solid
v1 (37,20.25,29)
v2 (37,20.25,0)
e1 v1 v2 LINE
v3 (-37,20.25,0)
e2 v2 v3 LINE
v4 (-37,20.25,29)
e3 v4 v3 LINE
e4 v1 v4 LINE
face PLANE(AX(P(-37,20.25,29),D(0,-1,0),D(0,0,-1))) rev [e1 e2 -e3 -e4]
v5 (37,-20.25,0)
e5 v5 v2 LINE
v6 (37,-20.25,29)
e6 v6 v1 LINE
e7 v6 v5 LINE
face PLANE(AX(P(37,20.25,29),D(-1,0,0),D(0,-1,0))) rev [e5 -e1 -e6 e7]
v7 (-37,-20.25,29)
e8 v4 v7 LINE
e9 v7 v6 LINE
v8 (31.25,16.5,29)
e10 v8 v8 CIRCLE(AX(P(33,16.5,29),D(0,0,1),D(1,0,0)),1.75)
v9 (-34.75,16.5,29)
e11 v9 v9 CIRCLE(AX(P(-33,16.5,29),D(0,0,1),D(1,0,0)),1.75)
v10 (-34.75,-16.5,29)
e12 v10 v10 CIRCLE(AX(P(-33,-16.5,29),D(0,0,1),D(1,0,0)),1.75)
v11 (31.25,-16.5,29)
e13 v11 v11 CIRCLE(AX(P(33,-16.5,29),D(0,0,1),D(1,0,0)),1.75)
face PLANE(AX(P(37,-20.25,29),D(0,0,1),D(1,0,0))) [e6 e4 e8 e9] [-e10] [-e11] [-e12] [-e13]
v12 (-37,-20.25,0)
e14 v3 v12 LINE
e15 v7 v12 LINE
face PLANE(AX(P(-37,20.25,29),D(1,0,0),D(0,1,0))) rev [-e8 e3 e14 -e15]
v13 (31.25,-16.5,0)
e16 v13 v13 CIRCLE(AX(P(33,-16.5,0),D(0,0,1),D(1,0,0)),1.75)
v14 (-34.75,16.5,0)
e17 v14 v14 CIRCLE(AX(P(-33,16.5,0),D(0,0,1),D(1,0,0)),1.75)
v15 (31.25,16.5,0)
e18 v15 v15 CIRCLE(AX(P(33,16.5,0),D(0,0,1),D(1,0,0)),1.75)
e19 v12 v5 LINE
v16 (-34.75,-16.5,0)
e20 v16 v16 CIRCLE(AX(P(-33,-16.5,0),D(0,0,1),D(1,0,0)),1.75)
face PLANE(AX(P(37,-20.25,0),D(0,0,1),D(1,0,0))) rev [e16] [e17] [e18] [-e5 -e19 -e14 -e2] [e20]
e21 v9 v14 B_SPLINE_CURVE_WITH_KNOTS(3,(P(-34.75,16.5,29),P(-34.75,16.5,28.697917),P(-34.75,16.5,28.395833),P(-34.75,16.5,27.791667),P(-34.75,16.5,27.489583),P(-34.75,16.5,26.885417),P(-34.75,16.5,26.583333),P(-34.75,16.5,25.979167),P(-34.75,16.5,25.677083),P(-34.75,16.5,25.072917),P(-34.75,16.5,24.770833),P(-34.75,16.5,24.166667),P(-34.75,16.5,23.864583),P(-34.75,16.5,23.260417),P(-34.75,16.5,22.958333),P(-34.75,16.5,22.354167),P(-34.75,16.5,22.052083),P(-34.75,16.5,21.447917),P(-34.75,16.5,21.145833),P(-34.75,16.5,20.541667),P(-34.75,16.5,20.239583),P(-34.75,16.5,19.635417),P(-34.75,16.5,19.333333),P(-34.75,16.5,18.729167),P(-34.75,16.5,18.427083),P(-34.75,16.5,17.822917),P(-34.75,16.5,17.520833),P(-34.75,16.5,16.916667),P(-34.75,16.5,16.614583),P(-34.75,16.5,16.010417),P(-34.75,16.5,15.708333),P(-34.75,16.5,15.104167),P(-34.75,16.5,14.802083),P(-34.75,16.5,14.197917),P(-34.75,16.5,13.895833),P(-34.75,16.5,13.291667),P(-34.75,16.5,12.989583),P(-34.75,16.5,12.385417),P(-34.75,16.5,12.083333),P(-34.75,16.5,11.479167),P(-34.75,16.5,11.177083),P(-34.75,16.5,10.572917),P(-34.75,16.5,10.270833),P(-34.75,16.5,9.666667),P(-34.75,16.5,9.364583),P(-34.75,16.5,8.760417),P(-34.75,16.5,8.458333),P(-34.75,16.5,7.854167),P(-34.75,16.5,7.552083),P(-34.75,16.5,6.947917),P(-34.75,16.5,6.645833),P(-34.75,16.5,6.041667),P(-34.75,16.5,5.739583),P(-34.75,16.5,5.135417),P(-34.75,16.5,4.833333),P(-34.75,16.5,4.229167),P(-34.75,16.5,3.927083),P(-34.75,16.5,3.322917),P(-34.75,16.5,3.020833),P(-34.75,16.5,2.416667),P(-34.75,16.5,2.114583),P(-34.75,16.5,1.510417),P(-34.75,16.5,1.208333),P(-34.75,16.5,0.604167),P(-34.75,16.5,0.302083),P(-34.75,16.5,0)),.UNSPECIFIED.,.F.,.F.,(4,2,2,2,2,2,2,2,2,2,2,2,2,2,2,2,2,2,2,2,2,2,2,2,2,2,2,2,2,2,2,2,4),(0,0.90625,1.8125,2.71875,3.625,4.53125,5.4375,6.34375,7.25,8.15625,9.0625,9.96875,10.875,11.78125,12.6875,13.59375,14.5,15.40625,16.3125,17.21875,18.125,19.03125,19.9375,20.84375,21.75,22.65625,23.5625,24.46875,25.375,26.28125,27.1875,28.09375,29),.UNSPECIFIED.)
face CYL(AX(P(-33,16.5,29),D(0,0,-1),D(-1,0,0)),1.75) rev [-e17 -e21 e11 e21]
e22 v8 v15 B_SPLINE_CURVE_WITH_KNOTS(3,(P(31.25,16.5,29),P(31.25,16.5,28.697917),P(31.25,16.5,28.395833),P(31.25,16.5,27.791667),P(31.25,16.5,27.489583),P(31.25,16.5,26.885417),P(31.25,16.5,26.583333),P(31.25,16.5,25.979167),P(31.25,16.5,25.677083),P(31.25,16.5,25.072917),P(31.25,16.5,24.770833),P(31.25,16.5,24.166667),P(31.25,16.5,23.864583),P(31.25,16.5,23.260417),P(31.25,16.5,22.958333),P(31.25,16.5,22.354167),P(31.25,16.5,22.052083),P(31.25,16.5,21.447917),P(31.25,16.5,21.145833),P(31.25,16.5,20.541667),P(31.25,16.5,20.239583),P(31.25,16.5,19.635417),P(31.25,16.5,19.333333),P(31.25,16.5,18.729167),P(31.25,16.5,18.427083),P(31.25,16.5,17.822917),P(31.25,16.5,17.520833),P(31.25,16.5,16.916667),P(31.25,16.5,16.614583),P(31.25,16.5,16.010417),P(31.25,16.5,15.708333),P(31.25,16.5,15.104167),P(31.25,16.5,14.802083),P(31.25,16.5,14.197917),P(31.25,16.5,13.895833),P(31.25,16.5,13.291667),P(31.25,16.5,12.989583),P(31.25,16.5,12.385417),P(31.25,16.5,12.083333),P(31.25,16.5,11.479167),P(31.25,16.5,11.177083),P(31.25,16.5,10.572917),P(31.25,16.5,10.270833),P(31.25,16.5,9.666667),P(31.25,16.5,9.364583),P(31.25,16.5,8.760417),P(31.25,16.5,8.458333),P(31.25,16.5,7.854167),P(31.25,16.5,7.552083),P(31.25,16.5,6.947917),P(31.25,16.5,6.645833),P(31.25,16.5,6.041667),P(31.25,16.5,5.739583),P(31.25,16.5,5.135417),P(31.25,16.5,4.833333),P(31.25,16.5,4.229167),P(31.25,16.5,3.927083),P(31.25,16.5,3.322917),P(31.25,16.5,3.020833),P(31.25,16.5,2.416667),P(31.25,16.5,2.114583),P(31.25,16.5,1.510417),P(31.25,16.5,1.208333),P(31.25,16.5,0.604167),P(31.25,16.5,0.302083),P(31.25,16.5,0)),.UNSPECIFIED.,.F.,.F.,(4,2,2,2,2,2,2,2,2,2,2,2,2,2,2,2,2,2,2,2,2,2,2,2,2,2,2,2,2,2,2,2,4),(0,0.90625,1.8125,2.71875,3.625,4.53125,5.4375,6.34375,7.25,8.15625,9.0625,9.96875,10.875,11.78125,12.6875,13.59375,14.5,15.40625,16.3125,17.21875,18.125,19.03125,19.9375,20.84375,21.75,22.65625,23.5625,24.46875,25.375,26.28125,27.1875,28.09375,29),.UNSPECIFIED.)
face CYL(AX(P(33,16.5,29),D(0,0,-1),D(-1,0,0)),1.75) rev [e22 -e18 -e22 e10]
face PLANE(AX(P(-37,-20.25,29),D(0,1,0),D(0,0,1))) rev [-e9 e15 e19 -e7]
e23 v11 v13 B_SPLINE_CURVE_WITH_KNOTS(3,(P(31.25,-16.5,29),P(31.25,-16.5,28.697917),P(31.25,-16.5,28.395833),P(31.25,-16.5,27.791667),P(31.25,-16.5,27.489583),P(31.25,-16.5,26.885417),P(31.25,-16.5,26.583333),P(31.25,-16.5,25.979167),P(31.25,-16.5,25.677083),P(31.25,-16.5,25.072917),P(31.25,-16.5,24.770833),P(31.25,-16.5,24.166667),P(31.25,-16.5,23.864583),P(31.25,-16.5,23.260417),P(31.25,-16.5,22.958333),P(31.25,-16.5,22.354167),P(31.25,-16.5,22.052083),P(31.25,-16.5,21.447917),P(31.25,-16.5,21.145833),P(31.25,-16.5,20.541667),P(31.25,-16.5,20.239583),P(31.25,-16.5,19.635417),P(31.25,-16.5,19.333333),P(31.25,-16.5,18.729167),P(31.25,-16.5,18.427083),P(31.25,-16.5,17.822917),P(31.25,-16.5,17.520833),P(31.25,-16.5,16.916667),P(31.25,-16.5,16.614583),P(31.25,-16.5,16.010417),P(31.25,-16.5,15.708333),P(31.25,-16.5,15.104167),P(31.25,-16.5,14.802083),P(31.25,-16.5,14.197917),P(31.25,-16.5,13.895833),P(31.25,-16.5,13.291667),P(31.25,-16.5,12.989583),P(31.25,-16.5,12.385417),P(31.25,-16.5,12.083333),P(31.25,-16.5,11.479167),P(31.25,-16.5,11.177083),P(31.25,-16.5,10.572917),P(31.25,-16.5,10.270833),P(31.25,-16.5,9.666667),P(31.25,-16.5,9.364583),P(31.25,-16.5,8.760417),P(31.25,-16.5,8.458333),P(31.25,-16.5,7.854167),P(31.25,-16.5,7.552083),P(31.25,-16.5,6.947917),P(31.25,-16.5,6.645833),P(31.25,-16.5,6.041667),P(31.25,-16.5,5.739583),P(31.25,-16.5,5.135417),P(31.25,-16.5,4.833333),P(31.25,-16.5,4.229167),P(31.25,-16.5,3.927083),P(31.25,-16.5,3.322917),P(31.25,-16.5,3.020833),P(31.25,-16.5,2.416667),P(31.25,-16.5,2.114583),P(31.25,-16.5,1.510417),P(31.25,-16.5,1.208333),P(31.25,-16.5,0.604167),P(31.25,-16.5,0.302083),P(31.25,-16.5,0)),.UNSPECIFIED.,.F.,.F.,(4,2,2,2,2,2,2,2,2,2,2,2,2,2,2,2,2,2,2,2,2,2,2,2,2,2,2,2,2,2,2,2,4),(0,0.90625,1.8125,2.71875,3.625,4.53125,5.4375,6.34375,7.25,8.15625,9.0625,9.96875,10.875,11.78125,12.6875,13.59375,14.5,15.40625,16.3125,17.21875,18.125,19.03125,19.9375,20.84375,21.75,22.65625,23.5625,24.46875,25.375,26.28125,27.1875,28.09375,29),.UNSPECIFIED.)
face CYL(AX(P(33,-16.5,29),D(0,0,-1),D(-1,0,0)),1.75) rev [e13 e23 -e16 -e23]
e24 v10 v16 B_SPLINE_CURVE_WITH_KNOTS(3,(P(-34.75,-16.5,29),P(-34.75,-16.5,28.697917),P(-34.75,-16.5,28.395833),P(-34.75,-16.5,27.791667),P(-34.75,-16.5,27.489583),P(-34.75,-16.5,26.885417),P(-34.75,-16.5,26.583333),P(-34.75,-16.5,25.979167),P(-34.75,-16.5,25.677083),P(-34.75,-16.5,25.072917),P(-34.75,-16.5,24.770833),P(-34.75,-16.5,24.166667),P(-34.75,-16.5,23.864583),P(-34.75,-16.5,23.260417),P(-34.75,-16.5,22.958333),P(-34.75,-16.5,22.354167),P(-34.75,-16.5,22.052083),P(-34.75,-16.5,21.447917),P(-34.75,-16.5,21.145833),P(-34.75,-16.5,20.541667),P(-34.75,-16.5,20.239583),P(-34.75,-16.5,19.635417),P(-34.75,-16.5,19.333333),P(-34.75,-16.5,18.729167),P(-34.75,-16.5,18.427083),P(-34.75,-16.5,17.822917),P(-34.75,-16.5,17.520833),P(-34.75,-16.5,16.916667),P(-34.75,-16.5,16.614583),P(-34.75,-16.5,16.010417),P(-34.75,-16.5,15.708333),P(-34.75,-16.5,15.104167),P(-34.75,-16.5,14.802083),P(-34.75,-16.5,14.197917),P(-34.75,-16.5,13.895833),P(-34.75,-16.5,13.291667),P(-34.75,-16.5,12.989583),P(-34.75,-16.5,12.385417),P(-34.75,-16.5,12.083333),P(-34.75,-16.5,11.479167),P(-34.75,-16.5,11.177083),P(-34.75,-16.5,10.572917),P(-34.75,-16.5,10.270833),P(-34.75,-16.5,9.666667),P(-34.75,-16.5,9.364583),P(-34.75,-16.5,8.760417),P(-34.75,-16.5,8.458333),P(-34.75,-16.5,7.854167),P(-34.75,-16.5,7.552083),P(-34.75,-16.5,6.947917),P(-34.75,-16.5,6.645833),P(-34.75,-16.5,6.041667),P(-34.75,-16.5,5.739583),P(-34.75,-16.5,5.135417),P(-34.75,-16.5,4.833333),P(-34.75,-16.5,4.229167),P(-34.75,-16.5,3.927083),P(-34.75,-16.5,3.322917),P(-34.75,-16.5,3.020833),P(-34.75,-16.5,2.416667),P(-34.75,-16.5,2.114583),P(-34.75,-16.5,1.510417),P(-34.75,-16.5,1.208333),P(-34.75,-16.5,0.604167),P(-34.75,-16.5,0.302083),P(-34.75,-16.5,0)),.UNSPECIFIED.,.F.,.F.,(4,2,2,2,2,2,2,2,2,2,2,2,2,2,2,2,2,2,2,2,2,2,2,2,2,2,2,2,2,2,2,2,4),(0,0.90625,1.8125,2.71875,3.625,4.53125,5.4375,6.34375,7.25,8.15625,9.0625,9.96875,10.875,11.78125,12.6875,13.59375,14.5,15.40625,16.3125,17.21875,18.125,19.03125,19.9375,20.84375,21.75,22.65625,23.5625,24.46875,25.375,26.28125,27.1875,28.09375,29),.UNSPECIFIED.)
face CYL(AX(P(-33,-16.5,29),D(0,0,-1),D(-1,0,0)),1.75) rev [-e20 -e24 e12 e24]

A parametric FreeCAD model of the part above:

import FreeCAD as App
import Part
import Sketcher
from FreeCAD import Vector


def add_polygon(sketch, points):
    """Adds a closed chain of lines whose ends are joined by coincident constraints."""
    first, n = sketch.GeometryCount, len(points)
    for a, b in zip(points, points[1:] + points[:1]):
        sketch.addGeometry(Part.LineSegment(App.Vector(*a, 0), App.Vector(*b, 0)), False)
    for i in range(n):
        sketch.addConstraint(Sketcher.Constraint("Coincident", first + i, 2, first + (i + 1) % n, 1))

doc = App.newDocument("Part")
body = doc.addObject("PartDesign::Body", "Body")

# Sketch on XY plane
sketch1 = doc.addObject("Sketcher::SketchObject", "Sketch")
body.addObject(sketch1)
sketch1.AttachmentSupport = (doc.XY_Plane, [""])
sketch1.MapMode = "FlatFace"
add_polygon(sketch1, [(-37, 20.25), (-37, -20.25), (37, -20.25), (37, 20.25)])  # lines 0-3
sketch1.addGeometry(Part.Circle(Vector(-33, -16.5, 0), Vector(0, 0, 1), 1.75), False)  # 4
sketch1.addGeometry(Part.Circle(Vector(33, -16.5, 0), Vector(0, 0, 1), 1.75), False)  # 5
sketch1.addGeometry(Part.Circle(Vector(-33, 16.5, 0), Vector(0, 0, 1), 1.75), False)  # 6
sketch1.addGeometry(Part.Circle(Vector(33, 16.5, 0), Vector(0, 0, 1), 1.75), False)  # 7
sketch1.addConstraint([
    Sketcher.Constraint("Vertical", 0),
    Sketcher.Constraint("Horizontal", 1),
    Sketcher.Constraint("Vertical", 2),
    Sketcher.Constraint("Horizontal", 3),
    Sketcher.Constraint("Equal", 4, 5),
    Sketcher.Constraint("Equal", 5, 6),
    Sketcher.Constraint("Equal", 6, 7),
    Sketcher.Constraint("Symmetric", 5, 3, 6, 3, -1, 1),
    Sketcher.Constraint("Symmetric", 4, 3, 7, 3, -1, 1),
    Sketcher.Constraint("Symmetric", 0, 2, 2, 2, -1, 1),
    Sketcher.Constraint("Symmetric", 4, 3, 5, 3, -2),
    Sketcher.Constraint("Diameter", 4, 3.5),
    Sketcher.Constraint("DistanceX", 1, 1, 1, 2, 74.0),
    Sketcher.Constraint("DistanceY", 0, 2, 0, 1, 40.5),
    Sketcher.Constraint("DistanceX", 4, 3, -1, 1, 33.0),
    Sketcher.Constraint("DistanceY", 4, 3, 6, 3, 33.0),
])
pad1 = doc.addObject("PartDesign::Pad", "Pad")
body.addObject(pad1)
pad1.Profile = sketch1
pad1.Length = 29

doc.recompute()
